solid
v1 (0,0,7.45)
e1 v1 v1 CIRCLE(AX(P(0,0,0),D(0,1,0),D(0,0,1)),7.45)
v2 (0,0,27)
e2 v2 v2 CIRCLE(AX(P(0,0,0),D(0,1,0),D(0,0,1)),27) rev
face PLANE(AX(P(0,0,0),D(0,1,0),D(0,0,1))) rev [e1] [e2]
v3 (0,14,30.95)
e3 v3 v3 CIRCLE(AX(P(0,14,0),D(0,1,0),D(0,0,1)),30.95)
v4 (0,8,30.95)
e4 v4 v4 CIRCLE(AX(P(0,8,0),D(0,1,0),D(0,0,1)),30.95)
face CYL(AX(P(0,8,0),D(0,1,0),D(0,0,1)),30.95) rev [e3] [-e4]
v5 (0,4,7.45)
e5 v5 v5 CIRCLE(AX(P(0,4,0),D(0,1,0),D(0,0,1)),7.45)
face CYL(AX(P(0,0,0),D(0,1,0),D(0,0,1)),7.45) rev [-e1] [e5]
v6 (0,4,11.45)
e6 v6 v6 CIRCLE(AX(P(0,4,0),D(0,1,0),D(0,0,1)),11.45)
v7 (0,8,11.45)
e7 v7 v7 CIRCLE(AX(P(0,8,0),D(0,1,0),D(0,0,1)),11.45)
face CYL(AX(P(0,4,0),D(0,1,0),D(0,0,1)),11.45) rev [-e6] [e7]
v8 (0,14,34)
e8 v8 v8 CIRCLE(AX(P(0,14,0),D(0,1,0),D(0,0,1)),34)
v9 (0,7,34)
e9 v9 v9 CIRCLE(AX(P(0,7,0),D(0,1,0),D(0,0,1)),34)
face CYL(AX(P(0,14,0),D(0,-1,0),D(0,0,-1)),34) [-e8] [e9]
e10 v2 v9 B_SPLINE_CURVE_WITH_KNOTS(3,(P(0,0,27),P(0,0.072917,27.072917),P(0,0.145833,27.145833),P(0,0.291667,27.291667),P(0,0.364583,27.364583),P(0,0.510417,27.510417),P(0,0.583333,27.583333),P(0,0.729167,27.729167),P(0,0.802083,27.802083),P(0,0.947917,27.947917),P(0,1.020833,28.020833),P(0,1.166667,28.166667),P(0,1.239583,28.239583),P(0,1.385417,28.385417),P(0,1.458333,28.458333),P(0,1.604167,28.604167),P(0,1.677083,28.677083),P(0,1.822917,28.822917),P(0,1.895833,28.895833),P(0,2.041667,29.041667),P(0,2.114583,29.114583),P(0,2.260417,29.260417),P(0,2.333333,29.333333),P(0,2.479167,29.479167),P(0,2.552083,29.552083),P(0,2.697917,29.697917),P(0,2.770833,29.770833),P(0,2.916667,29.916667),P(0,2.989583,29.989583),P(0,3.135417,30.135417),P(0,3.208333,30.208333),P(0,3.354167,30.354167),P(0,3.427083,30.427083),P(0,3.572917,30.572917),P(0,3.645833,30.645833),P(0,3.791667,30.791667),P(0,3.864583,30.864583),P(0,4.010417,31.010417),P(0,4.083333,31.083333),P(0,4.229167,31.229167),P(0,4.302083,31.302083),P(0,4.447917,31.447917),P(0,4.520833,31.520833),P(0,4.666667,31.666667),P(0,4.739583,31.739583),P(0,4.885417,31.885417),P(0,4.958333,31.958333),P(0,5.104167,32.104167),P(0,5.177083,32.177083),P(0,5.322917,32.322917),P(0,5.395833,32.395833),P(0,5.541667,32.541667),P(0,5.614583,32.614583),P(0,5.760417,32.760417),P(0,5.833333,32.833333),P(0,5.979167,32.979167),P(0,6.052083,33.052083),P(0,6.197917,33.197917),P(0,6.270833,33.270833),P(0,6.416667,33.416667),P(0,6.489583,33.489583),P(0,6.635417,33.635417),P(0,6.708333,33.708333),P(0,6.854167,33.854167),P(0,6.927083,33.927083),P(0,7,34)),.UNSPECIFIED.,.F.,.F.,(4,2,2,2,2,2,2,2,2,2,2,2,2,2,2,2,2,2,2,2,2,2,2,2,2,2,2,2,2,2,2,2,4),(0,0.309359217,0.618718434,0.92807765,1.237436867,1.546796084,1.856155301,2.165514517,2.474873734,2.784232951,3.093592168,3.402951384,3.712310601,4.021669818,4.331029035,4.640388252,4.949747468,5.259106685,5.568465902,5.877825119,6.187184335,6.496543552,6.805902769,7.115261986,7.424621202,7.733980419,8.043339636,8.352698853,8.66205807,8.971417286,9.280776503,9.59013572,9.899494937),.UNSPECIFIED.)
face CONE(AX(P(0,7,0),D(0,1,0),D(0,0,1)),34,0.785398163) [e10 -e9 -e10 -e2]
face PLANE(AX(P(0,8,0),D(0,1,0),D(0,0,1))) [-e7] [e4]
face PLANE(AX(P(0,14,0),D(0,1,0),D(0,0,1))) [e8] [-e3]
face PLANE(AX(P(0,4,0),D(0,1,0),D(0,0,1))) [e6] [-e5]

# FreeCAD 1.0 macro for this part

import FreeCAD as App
import Part
import Sketcher
Q = App.Units.Quantity


def edges_at(feature, points):
    """Names of the edges that pass closest to the given points."""
    edges = feature.Shape.Edges
    near = lambda p: min(range(len(edges)), key=lambda i: edges[i].distToShape(Part.Vertex(*p))[0])
    return sorted({f"Edge{near(p) + 1}" for p in points})

doc = App.newDocument("Part")
params = doc.addObject("Spreadsheet::Sheet", "Params")
for row, (alias, value) in enumerate([
    ("sketch1_diameter", "68 mm"),
    ("pad1_length", "14 mm"),
    ("sketch2_diameter", "61.9 mm"),
    ("pocket1_length", "6 mm"),
    ("sketch3_diameter", "22.9 mm"),
    ("pocket2_length", "4 mm"),
    ("sketch4_diameter", "14.9 mm"),
    ("pocket3_length", "4 mm"),
    ("chamfer_size", "7 mm"),
], start=1):
    params.set(f"A{row}", alias)
    params.set(f"B{row}", "=" + value)
    params.setAlias(f"B{row}", alias)

body = doc.addObject("PartDesign::Body", "Body")

# Sketch on XZ plane
sketch1 = body.newObject("Sketcher::SketchObject", "Sketch")
sketch1.AttachmentSupport = (doc.getObject("XZ_Plane"), [""])
sketch1.MapMode = "FlatFace"
sketch1.addGeometry(Part.Circle(App.Vector(0, 0, 0), App.Vector(0, 0, 1), 34), False)
sketch1.addConstraint([
    Sketcher.Constraint("Coincident", 0, 3, -1, 1),
    Sketcher.Constraint("Diameter", 0, Q("68 mm")),
])
sketch1.setExpression("Constraints[1]", "Params.sketch1_diameter")
pad1 = body.newObject("PartDesign::Pad", "Pad")
pad1.Profile = sketch1
pad1.setExpression("Length", "Params.pad1_length")
pad1.Reversed = True

# Sketch on XZ plane
sketch2 = body.newObject("Sketcher::SketchObject", "Sketch001")
sketch2.AttachmentSupport = (doc.getObject("XZ_Plane"), [""])
sketch2.MapMode = "FlatFace"
sketch2.AttachmentOffset = App.Placement(App.Vector(0, 0, -14), App.Rotation())
sketch2.addGeometry(Part.Circle(App.Vector(0, 0, 0), App.Vector(0, 0, 1), 31), False)
sketch2.addConstraint([
    Sketcher.Constraint("Coincident", 0, 3, -1, 1),
    Sketcher.Constraint("Diameter", 0, Q("61.9 mm")),
])
sketch2.setExpression("Constraints[1]", "Params.sketch2_diameter")
pocket1 = body.newObject("PartDesign::Pocket", "Pocket")
pocket1.Profile = sketch2
pocket1.setExpression("Length", "Params.pocket1_length")
pocket1.Reversed = True

# Sketch on XZ plane
sketch3 = body.newObject("Sketcher::SketchObject", "Sketch002")
sketch3.AttachmentSupport = (doc.getObject("XZ_Plane"), [""])
sketch3.MapMode = "FlatFace"
sketch3.AttachmentOffset = App.Placement(App.Vector(0, 0, -8), App.Rotation())
sketch3.addGeometry(Part.Circle(App.Vector(0, 0, 0), App.Vector(0, 0, 1), 11), False)
sketch3.addConstraint([
    Sketcher.Constraint("Coincident", 0, 3, -1, 1),
    Sketcher.Constraint("Diameter", 0, Q("22.9 mm")),
])
sketch3.setExpression("Constraints[1]", "Params.sketch3_diameter")
pocket2 = body.newObject("PartDesign::Pocket", "Pocket001")
pocket2.Profile = sketch3
pocket2.setExpression("Length", "Params.pocket2_length")
pocket2.Reversed = True

# Sketch on XZ plane
sketch4 = body.newObject("Sketcher::SketchObject", "Sketch003")
sketch4.AttachmentSupport = (doc.getObject("XZ_Plane"), [""])
sketch4.MapMode = "FlatFace"
sketch4.AttachmentOffset = App.Placement(App.Vector(0, 0, -4), App.Rotation())
sketch4.addGeometry(Part.Circle(App.Vector(0, 0, 0), App.Vector(0, 0, 1), 7), False)
sketch4.addConstraint([
    Sketcher.Constraint("Coincident", 0, 3, -1, 1),
    Sketcher.Constraint("Diameter", 0, Q("14.9 mm")),
])
sketch4.setExpression("Constraints[1]", "Params.sketch4_diameter")
pocket3 = body.newObject("PartDesign::Pocket", "Pocket002")
pocket3.Profile = sketch4
pocket3.setExpression("Length", "Params.pocket3_length")
pocket3.Reversed = True
doc.recompute()

chamfer = body.newObject("PartDesign::Chamfer", "Chamfer")
chamfer.Base = (pocket3, edges_at(pocket3, [(0, 0, -34)]))
chamfer.setExpression("Size", "Params.chamfer_size")

doc.recompute()
